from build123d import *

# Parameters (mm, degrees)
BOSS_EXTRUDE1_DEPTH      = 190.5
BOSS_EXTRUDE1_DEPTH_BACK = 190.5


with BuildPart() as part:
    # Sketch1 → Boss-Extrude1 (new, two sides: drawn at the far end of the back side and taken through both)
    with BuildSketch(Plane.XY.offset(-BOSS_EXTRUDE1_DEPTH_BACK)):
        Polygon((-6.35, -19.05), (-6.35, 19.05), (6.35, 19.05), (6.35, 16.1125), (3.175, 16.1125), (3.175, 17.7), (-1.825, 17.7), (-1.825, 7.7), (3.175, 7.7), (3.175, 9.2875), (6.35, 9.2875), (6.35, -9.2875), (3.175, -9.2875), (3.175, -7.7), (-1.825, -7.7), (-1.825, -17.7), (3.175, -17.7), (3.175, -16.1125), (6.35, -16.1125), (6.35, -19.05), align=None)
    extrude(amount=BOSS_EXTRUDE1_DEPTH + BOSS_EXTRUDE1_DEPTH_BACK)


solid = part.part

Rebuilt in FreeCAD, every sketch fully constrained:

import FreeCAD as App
import Part
import Sketcher
Q = App.Units.Quantity


def add_polygon(sketch, points):
    """Adds a closed chain of lines whose ends are joined by coincident constraints."""
    first, n = sketch.GeometryCount, len(points)
    for a, b in zip(points, points[1:] + points[:1]):
        sketch.addGeometry(Part.LineSegment(App.Vector(*a, 0), App.Vector(*b, 0)), False)
    for i in range(n):
        sketch.addConstraint(Sketcher.Constraint("Coincident", first + i, 2, first + (i + 1) % n, 1))

doc = App.newDocument("Part")
body = doc.addObject("PartDesign::Body", "Body")

# Sketch on XY plane
sketch1 = body.newObject("Sketcher::SketchObject", "Sketch")
sketch1.AttachmentSupport = (doc.getObject("XY_Plane"), [""])
sketch1.MapMode = "FlatFace"
add_polygon(sketch1, [(-6.3, 19.1), (-6.3, -19.1), (6.3, -19.1), (6.3, -16.1), (3.2, -16.1), (3.2, -17.7), (-1.8, -17.7), (-1.8, -7.7), (3.2, -7.7), (3.2, -9.3), (6.3, -9.3), (6.3, 9.3), (3.2, 9.3), (3.2, 7.7), (-1.8, 7.7), (-1.8, 17.7), (3.2, 17.7), (3.2, 16.1), (6.3, 16.1), (6.3, 19.1)])  # lines 0-19
sketch1.addConstraint([
    Sketcher.Constraint("Vertical", 0),
    Sketcher.Constraint("Horizontal", 1),
    Sketcher.Constraint("Vertical", 2),
    Sketcher.Constraint("Horizontal", 3),
    Sketcher.Constraint("Vertical", 4),
    Sketcher.Constraint("Horizontal", 5),
    Sketcher.Constraint("Vertical", 6),
    Sketcher.Constraint("Horizontal", 7),
    Sketcher.Constraint("Vertical", 8),
    Sketcher.Constraint("Horizontal", 9),
    Sketcher.Constraint("Vertical", 10),
    Sketcher.Constraint("Horizontal", 11),
    Sketcher.Constraint("Vertical", 12),
    Sketcher.Constraint("Horizontal", 13),
    Sketcher.Constraint("Vertical", 14),
    Sketcher.Constraint("Horizontal", 15),
    Sketcher.Constraint("Vertical", 16),
    Sketcher.Constraint("Horizontal", 17),
    Sketcher.Constraint("Vertical", 18),
    Sketcher.Constraint("Horizontal", 19),
    Sketcher.Constraint("Symmetric", 0, 2, 18, 2, -1, 1),
    Sketcher.Constraint("Symmetric", 8, 2, 11, 2, -1),
    Sketcher.Constraint("Symmetric", 6, 2, 13, 2, -1),
    Sketcher.Constraint("Symmetric", 4, 2, 15, 2, -1),
    Sketcher.Constraint("Symmetric", 2, 2, 17, 2, -1),
    Sketcher.Constraint("Vertical", 4, 2, 7, 2),
    Sketcher.Constraint("Vertical", 2, 2, 9, 2),
    Sketcher.Constraint("Equal", 4, 8),
    Sketcher.Constraint("DistanceX", 1, 1, 1, 2, Q("0.5 in")),
    Sketcher.Constraint("DistanceY", 0, 2, 0, 1, Q("1.5 in")),
    Sketcher.Constraint("DistanceY", 2, 2, 10, 2, Q("1 in")),
    Sketcher.Constraint("DistanceX", 3, 2, 3, 1, Q("0.125 in")),
    Sketcher.Constraint("DistanceY", 4, 2, 4, 1, Q("0.0625 in")),
    Sketcher.Constraint("DistanceX", 5, 2, 5, 1, Q("5 mm")),
    Sketcher.Constraint("DistanceY", 2, 1, 2, 2, Q("2.9375 mm")),
])
pad1 = body.newObject("PartDesign::Pad", "Pad")
pad1.Profile = sketch1
pad1.Type = "TwoLengths"
pad1.Length = Q("7.5 in")
pad1.Length2 = Q("7.5 in")

doc.recompute()
